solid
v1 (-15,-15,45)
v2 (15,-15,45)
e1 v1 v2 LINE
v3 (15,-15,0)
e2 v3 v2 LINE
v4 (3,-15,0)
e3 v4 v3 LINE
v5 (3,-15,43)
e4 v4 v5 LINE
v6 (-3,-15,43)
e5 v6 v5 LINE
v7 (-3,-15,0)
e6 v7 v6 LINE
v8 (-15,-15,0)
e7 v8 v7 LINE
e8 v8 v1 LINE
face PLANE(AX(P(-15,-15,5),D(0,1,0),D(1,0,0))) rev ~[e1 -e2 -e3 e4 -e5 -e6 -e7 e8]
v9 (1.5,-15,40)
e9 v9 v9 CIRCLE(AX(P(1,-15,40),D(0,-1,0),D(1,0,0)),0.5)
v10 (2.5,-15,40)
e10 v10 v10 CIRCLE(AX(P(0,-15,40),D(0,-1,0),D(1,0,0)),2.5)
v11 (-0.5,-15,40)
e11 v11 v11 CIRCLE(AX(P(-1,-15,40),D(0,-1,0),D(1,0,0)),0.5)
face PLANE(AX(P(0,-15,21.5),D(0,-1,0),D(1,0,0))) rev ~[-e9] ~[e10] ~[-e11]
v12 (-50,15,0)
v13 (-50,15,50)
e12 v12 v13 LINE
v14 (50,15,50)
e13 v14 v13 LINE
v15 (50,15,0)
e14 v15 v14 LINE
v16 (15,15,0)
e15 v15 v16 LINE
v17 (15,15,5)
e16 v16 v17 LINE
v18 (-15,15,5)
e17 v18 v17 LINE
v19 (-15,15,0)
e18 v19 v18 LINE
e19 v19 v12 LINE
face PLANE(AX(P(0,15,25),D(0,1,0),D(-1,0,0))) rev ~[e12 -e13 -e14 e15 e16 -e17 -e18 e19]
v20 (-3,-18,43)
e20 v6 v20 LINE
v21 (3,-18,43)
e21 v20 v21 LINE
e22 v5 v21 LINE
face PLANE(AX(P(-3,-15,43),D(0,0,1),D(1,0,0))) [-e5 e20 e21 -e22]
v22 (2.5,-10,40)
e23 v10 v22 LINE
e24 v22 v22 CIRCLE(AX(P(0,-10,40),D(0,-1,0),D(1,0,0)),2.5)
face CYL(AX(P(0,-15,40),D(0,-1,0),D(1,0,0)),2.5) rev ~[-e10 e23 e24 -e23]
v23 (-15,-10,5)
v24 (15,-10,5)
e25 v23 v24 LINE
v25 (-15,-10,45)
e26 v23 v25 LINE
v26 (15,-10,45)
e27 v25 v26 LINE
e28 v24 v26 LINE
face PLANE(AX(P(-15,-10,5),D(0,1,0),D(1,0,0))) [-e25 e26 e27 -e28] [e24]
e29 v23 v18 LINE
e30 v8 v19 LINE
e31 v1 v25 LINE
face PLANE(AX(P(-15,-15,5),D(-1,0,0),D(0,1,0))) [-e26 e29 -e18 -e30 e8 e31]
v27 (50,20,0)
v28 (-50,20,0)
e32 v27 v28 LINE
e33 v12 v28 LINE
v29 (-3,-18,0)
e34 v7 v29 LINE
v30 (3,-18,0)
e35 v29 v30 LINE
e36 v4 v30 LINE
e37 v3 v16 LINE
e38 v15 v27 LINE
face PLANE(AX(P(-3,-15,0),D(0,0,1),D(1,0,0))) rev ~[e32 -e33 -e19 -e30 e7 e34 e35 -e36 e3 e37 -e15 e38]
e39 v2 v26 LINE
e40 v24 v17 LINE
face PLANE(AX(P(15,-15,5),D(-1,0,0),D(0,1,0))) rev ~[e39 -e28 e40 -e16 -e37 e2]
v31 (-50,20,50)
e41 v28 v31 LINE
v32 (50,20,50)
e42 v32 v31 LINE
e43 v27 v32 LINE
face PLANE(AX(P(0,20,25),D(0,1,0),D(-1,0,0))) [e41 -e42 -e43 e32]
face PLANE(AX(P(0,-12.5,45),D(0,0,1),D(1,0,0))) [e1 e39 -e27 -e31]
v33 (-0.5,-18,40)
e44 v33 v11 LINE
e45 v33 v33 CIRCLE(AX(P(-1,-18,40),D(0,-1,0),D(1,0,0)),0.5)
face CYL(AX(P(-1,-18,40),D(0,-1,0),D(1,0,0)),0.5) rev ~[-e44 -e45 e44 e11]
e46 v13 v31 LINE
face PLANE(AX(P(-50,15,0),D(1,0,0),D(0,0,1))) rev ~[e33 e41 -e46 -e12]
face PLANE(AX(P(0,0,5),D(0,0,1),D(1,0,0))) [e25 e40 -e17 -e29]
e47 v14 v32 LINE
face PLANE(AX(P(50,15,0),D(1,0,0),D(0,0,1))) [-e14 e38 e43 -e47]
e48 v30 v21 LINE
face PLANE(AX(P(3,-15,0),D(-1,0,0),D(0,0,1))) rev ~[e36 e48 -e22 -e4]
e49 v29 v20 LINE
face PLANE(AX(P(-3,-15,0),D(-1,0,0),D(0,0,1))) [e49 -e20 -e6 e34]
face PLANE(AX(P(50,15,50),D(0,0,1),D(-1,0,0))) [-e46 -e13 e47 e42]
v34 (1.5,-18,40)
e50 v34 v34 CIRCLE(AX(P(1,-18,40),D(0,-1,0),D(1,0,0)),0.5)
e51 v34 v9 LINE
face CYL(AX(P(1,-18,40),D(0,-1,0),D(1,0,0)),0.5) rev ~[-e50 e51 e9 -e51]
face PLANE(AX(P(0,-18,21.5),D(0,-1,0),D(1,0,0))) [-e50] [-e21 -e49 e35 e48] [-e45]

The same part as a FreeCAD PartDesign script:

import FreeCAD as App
import Part
import Sketcher

V = App.Vector
Q = App.Units.Quantity


def add_polygon(sketch, points):
    """Adds a closed chain of lines whose ends are joined by coincident constraints."""
    first, n = sketch.GeometryCount, len(points)
    for a, b in zip(points, points[1:] + points[:1]):
        sketch.addGeometry(Part.LineSegment(App.Vector(*a, 0), App.Vector(*b, 0)), False)
    for i in range(n):
        sketch.addConstraint(Sketcher.Constraint("Coincident", first + i, 2, first + (i + 1) % n, 1))

doc = App.newDocument("Part")
body = doc.addObject("PartDesign::Body", "Body")

sketch1 = body.newObject("Sketcher::SketchObject", "Sketch")
sketch1.AttachmentSupport = (doc.getObject("XY_Plane"), [""])
sketch1.MapMode = "FlatFace"
add_polygon(sketch1, [(-15, 15), (-15, -15), (15, -15), (15, 15)])
sketch1.addConstraint([
    Sketcher.Constraint("Vertical", 0),
    Sketcher.Constraint("Horizontal", 1),
    Sketcher.Constraint("Vertical", 2),
    Sketcher.Constraint("Horizontal", 3),
    Sketcher.Constraint("Symmetric", 0, 2, 2, 2, -1, 1),
    Sketcher.Constraint("Equal", 3, 0),
    Sketcher.Constraint("DistanceX", 1, 1, 1, 2, Q("30 mm")),
])
pad1 = body.newObject("PartDesign::Pad", "Pad")
pad1.Profile = sketch1
pad1.Length = 5

sketch2 = body.newObject("Sketcher::SketchObject", "Sketch001")
sketch2.AttachmentSupport = (doc.getObject("XY_Plane"), [""])
sketch2.MapMode = "FlatFace"
sketch2.AttachmentOffset = App.Placement(V(0, 0, 5), App.Rotation())
add_polygon(sketch2, [(-15, -10), (-15, -15), (15, -15), (15, -10)])
sketch2.addConstraint([
    Sketcher.Constraint("Vertical", 0),
    Sketcher.Constraint("Horizontal", 1),
    Sketcher.Constraint("Vertical", 2),
    Sketcher.Constraint("Horizontal", 3),
    Sketcher.Constraint("DistanceX", 1, 1, 1, 2, Q("30 mm")),
    Sketcher.Constraint("DistanceY", 0, 2, 0, 1, Q("5 mm")),
    Sketcher.Constraint("DistanceX", 0, 2, -1, 1, Q("15 mm")),
    Sketcher.Constraint("DistanceY", 0, 2, -1, 1, Q("15 mm")),
])
pad2 = body.newObject("PartDesign::Pad", "Pad001")
pad2.Profile = sketch2
pad2.Length = 40

sketch3 = body.newObject("Sketcher::SketchObject", "Sketch002")
sketch3.AttachmentSupport = (doc.getObject("XZ_Plane"), [""])
sketch3.MapMode = "FlatFace"
sketch3.AttachmentOffset = App.Placement(V(0, 0, -15), App.Rotation())
add_polygon(sketch3, [(50, 50), (50, 0), (-50, 0), (-50, 50)])
sketch3.addConstraint([
    Sketcher.Constraint("Vertical", 0),
    Sketcher.Constraint("Horizontal", 1),
    Sketcher.Constraint("Vertical", 2),
    Sketcher.Constraint("Horizontal", 3),
    Sketcher.Constraint("Symmetric", 0, 2, 1, 2, -1, 1),
    Sketcher.Constraint("DistanceX", 1, 2, 1, 1, Q("100 mm")),
    Sketcher.Constraint("DistanceY", 0, 2, 0, 1, Q("50 mm")),
])
pad3 = body.newObject("PartDesign::Pad", "Pad002")
pad3.Profile = sketch3
pad3.Length = 5
pad3.Reversed = True

sketch4 = body.newObject("Sketcher::SketchObject", "Sketch003")
sketch4.AttachmentSupport = (doc.getObject("XZ_Plane"), [""])
sketch4.MapMode = "FlatFace"
sketch4.AttachmentOffset = App.Placement(V(0, 0, 15), App.Rotation())
sketch4.addGeometry(Part.Circle(V(0, 40, 0), V(0, 0, 1), 2.5), False)
sketch4.addConstraint([
    Sketcher.Constraint("PointOnObject", 0, 3, -2),
    Sketcher.Constraint("Diameter", 0, Q("5 mm")),
    Sketcher.Constraint("DistanceY", -1, 1, 0, 3, Q("40 mm")),
])
pocket1 = body.newObject("PartDesign::Pocket", "Pocket")
pocket1.Profile = sketch4
pocket1.Length = 5

sketch5 = body.newObject("Sketcher::SketchObject", "Sketch004")
sketch5.AttachmentSupport = (doc.getObject("XZ_Plane"), [""])
sketch5.MapMode = "FlatFace"
sketch5.AttachmentOffset = App.Placement(V(0, 0, 15), App.Rotation())
add_polygon(sketch5, [(-3, 43), (-3, 0), (3, 0), (3, 43)])
sketch5.addConstraint([
    Sketcher.Constraint("Vertical", 0),
    Sketcher.Constraint("Horizontal", 1),
    Sketcher.Constraint("Vertical", 2),
    Sketcher.Constraint("Horizontal", 3),
    Sketcher.Constraint("Symmetric", 0, 2, 1, 2, -1, 1),
    Sketcher.Constraint("DistanceX", 1, 1, 1, 2, Q("6 mm")),
    Sketcher.Constraint("DistanceY", 0, 2, 0, 1, Q("43 mm")),
])
pad4 = body.newObject("PartDesign::Pad", "Pad003")
pad4.Profile = sketch5
pad4.Length = 3

sketch6 = body.newObject("Sketcher::SketchObject", "Sketch005")
sketch6.AttachmentSupport = (doc.getObject("XZ_Plane"), [""])
sketch6.MapMode = "FlatFace"
sketch6.AttachmentOffset = App.Placement(V(0, 0, 18), App.Rotation())
sketch6.addGeometry([
    Part.Circle(V(1, 40, 0), V(0, 0, 1), 0.5),
    Part.Circle(V(-1, 40, 0), V(0, 0, 1), 0.5),
], False)
sketch6.addConstraint([
    Sketcher.Constraint("Equal", 0, 1),
    Sketcher.Constraint("Symmetric", 0, 3, 1, 3, -2),
    Sketcher.Constraint("Diameter", 0, Q("1 mm")),
    Sketcher.Constraint("DistanceX", -1, 1, 0, 3, Q("1 mm")),
    Sketcher.Constraint("DistanceY", -1, 1, 0, 3, Q("40 mm")),
])
pocket2 = body.newObject("PartDesign::Pocket", "Pocket001")
pocket2.Profile = sketch6
pocket2.Length = 3

doc.recompute()
